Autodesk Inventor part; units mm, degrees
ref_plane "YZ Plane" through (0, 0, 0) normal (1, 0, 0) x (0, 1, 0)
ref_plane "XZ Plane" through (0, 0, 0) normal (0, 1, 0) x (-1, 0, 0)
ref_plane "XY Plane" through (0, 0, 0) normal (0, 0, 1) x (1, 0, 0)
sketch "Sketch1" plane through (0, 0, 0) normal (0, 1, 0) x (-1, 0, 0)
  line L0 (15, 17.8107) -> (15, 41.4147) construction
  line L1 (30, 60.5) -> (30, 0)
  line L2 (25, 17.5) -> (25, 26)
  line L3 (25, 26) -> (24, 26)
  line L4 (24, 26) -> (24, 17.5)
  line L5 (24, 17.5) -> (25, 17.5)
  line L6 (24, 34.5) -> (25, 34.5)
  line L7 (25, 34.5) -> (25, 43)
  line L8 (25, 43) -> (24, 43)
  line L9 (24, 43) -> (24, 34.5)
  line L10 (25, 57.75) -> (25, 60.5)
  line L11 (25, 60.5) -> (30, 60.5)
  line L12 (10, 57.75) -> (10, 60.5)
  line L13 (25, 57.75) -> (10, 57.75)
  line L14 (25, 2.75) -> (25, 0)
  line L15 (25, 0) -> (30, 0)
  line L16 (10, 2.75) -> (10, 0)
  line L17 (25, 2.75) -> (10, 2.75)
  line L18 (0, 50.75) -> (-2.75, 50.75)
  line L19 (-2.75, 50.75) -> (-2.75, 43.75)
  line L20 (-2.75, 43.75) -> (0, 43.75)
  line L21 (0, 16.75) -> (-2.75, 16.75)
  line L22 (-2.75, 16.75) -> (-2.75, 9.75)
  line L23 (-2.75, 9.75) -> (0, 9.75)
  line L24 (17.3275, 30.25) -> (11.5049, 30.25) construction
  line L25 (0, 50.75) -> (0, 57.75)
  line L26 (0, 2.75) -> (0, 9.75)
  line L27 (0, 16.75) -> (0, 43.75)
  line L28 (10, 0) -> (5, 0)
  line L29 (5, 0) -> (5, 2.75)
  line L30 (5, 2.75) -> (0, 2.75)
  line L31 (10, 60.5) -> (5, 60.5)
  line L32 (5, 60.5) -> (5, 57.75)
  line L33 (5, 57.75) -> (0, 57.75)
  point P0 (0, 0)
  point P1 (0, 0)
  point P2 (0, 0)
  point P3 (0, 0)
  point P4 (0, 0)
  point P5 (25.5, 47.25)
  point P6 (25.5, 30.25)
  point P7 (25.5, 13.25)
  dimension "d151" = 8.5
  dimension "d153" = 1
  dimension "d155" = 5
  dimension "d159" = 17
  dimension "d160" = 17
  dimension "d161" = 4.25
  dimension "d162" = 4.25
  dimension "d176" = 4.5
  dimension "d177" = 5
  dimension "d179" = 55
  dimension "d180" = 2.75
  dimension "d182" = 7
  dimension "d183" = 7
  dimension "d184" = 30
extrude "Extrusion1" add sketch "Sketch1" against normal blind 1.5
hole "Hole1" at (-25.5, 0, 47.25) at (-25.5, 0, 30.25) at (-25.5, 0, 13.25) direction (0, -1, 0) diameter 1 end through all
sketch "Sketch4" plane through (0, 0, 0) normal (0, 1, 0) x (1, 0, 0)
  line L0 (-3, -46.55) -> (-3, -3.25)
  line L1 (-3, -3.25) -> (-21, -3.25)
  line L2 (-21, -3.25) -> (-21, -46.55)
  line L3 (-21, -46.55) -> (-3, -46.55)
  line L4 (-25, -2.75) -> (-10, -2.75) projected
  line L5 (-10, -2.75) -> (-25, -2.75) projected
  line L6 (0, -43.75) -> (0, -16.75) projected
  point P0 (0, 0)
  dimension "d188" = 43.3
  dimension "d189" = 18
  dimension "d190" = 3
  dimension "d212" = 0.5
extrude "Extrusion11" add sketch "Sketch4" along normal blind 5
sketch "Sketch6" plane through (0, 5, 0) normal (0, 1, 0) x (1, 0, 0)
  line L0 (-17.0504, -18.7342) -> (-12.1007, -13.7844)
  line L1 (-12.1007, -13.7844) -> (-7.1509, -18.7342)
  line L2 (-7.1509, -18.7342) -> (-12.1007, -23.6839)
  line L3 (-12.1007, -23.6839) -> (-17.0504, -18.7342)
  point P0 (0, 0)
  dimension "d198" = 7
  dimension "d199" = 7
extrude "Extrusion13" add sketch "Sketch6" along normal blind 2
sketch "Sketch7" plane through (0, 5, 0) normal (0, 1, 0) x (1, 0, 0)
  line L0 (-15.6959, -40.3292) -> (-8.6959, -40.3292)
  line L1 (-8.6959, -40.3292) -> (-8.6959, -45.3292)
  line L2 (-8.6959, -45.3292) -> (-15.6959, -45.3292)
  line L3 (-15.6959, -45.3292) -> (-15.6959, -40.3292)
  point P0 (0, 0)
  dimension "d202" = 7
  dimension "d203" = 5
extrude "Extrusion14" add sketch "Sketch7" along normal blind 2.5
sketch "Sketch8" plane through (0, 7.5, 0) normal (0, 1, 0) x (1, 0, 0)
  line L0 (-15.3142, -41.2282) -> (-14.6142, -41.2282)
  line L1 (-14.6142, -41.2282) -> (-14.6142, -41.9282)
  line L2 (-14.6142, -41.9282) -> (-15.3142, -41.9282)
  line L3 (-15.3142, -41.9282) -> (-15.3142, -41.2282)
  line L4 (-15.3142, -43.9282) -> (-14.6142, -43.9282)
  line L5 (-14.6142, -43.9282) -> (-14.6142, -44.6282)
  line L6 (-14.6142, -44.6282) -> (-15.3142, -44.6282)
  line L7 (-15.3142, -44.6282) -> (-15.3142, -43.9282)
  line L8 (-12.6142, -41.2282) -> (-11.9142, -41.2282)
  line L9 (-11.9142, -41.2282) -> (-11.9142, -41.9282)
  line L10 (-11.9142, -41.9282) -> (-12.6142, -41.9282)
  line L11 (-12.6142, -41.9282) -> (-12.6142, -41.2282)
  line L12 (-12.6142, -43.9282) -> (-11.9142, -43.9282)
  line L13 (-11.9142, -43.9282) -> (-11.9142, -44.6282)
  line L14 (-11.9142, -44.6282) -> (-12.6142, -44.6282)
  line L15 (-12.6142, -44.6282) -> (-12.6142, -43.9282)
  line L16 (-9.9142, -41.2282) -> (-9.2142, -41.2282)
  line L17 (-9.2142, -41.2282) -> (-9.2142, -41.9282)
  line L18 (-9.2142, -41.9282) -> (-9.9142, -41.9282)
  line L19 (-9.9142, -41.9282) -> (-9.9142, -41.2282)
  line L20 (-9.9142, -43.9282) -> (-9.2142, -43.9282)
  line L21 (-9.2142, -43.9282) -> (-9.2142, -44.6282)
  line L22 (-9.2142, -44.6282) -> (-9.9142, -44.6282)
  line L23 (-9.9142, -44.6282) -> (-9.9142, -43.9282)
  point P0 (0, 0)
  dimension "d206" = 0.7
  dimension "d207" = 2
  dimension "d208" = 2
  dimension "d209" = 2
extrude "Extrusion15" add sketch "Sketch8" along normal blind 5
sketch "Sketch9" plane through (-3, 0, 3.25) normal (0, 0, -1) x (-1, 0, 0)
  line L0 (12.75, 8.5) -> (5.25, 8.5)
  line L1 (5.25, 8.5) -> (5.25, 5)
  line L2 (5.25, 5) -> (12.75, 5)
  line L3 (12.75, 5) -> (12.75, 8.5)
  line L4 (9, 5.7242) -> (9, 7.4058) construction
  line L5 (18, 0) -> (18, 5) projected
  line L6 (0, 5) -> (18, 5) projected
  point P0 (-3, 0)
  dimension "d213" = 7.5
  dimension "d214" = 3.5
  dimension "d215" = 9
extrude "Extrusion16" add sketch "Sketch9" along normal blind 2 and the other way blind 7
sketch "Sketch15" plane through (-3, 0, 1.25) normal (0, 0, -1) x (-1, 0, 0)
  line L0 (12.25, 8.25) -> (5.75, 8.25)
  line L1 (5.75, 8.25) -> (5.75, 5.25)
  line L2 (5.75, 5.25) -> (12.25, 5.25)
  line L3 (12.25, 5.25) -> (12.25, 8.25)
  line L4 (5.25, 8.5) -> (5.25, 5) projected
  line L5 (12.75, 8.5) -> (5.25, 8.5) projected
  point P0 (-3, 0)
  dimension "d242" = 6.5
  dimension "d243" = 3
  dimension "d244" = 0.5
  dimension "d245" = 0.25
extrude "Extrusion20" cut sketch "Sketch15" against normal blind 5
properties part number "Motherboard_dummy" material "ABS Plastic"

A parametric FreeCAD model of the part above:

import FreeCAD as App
import Part
import Sketcher
from FreeCAD import Vector

doc = App.newDocument("Part")
body = doc.addObject("PartDesign::Body", "Body")

sketch1 = body.newObject("Sketcher::SketchObject", "Sketch")
sketch1.AttachmentSupport = (doc.getObject("XZ_Plane"), [""])
sketch1.MapMode = "FlatFace"
sketch1.addGeometry(Part.LineSegment(Vector(-30, 0, 0), Vector(-30, 60.5, 0)), False)
sketch1.addGeometry(Part.LineSegment(Vector(-30, 60.5, 0), Vector(-25, 60.5, 0)), False)
sketch1.addGeometry(Part.LineSegment(Vector(-25, 60.5, 0), Vector(-25, 57.75, 0)), False)
sketch1.addGeometry(Part.LineSegment(Vector(-25, 57.75, 0), Vector(-10, 57.75, 0)), False)
sketch1.addGeometry(Part.LineSegment(Vector(-10, 57.75, 0), Vector(-10, 60.5, 0)), False)
sketch1.addGeometry(Part.LineSegment(Vector(-10, 60.5, 0), Vector(-5, 60.5, 0)), False)
sketch1.addGeometry(Part.LineSegment(Vector(-5, 60.5, 0), Vector(-5, 57.75, 0)), False)
sketch1.addGeometry(Part.LineSegment(Vector(-5, 57.75, 0), Vector(0, 57.75, 0)), False)
sketch1.addGeometry(Part.LineSegment(Vector(0, 57.75, 0), Vector(0, 50.75, 0)), False)
sketch1.addGeometry(Part.LineSegment(Vector(0, 50.75, 0), Vector(2.75, 50.75, 0)), False)
sketch1.addGeometry(Part.LineSegment(Vector(2.75, 50.75, 0), Vector(2.75, 43.75, 0)), False)
sketch1.addGeometry(Part.LineSegment(Vector(2.75, 43.75, 0), Vector(0, 43.75, 0)), False)
sketch1.addGeometry(Part.LineSegment(Vector(0, 43.75, 0), Vector(0, 16.75, 0)), False)
sketch1.addGeometry(Part.LineSegment(Vector(0, 16.75, 0), Vector(2.75, 16.75, 0)), False)
sketch1.addGeometry(Part.LineSegment(Vector(2.75, 16.75, 0), Vector(2.75, 9.75, 0)), False)
sketch1.addGeometry(Part.LineSegment(Vector(2.75, 9.75, 0), Vector(0, 9.75, 0)), False)
sketch1.addGeometry(Part.LineSegment(Vector(0, 9.75, 0), Vector(0, 2.75, 0)), False)
sketch1.addGeometry(Part.LineSegment(Vector(0, 2.75, 0), Vector(-5, 2.75, 0)), False)
sketch1.addGeometry(Part.LineSegment(Vector(-5, 2.75, 0), Vector(-5, 0, 0)), False)
sketch1.addGeometry(Part.LineSegment(Vector(-5, 0, 0), Vector(-10, 0, 0)), False)
sketch1.addGeometry(Part.LineSegment(Vector(-10, 0, 0), Vector(-10, 2.75, 0)), False)
sketch1.addGeometry(Part.LineSegment(Vector(-10, 2.75, 0), Vector(-25, 2.75, 0)), False)
sketch1.addGeometry(Part.LineSegment(Vector(-25, 2.75, 0), Vector(-25, 0, 0)), False)
sketch1.addGeometry(Part.LineSegment(Vector(-25, 0, 0), Vector(-30, 0, 0)), False)
sketch1.addGeometry(Part.LineSegment(Vector(-25, 26, 0), Vector(-25, 17.5, 0)), False)
sketch1.addGeometry(Part.LineSegment(Vector(-25, 17.5, 0), Vector(-24, 17.5, 0)), False)
sketch1.addGeometry(Part.LineSegment(Vector(-24, 17.5, 0), Vector(-24, 26, 0)), False)
sketch1.addGeometry(Part.LineSegment(Vector(-24, 26, 0), Vector(-25, 26, 0)), False)
sketch1.addGeometry(Part.LineSegment(Vector(-25, 34.5, 0), Vector(-24, 34.5, 0)), False)
sketch1.addGeometry(Part.LineSegment(Vector(-24, 34.5, 0), Vector(-24, 43, 0)), False)
sketch1.addGeometry(Part.LineSegment(Vector(-24, 43, 0), Vector(-25, 43, 0)), False)
sketch1.addGeometry(Part.LineSegment(Vector(-25, 43, 0), Vector(-25, 34.5, 0)), False)
sketch1.addConstraint(Sketcher.Constraint("Coincident", 0, 2, 1, 1))
sketch1.addConstraint(Sketcher.Constraint("Coincident", 1, 2, 2, 1))
sketch1.addConstraint(Sketcher.Constraint("Coincident", 2, 2, 3, 1))
sketch1.addConstraint(Sketcher.Constraint("Coincident", 3, 2, 4, 1))
sketch1.addConstraint(Sketcher.Constraint("Coincident", 4, 2, 5, 1))
sketch1.addConstraint(Sketcher.Constraint("Coincident", 5, 2, 6, 1))
sketch1.addConstraint(Sketcher.Constraint("Coincident", 6, 2, 7, 1))
sketch1.addConstraint(Sketcher.Constraint("Coincident", 7, 2, 8, 1))
sketch1.addConstraint(Sketcher.Constraint("Coincident", 8, 2, 9, 1))
sketch1.addConstraint(Sketcher.Constraint("Coincident", 9, 2, 10, 1))
sketch1.addConstraint(Sketcher.Constraint("Coincident", 10, 2, 11, 1))
sketch1.addConstraint(Sketcher.Constraint("Coincident", 11, 2, 12, 1))
sketch1.addConstraint(Sketcher.Constraint("Coincident", 12, 2, 13, 1))
sketch1.addConstraint(Sketcher.Constraint("Coincident", 13, 2, 14, 1))
sketch1.addConstraint(Sketcher.Constraint("Coincident", 14, 2, 15, 1))
sketch1.addConstraint(Sketcher.Constraint("Coincident", 15, 2, 16, 1))
sketch1.addConstraint(Sketcher.Constraint("Coincident", 16, 2, 17, 1))
sketch1.addConstraint(Sketcher.Constraint("Coincident", 17, 2, 18, 1))
sketch1.addConstraint(Sketcher.Constraint("Coincident", 18, 2, 19, 1))
sketch1.addConstraint(Sketcher.Constraint("Coincident", 19, 2, 20, 1))
sketch1.addConstraint(Sketcher.Constraint("Coincident", 20, 2, 21, 1))
sketch1.addConstraint(Sketcher.Constraint("Coincident", 21, 2, 22, 1))
sketch1.addConstraint(Sketcher.Constraint("Coincident", 22, 2, 23, 1))
sketch1.addConstraint(Sketcher.Constraint("Coincident", 23, 2, 0, 1))
sketch1.addConstraint(Sketcher.Constraint("Coincident", 24, 2, 25, 1))
sketch1.addConstraint(Sketcher.Constraint("Coincident", 25, 2, 26, 1))
sketch1.addConstraint(Sketcher.Constraint("Coincident", 26, 2, 27, 1))
sketch1.addConstraint(Sketcher.Constraint("Coincident", 27, 2, 24, 1))
sketch1.addConstraint(Sketcher.Constraint("Coincident", 28, 2, 29, 1))
sketch1.addConstraint(Sketcher.Constraint("Coincident", 29, 2, 30, 1))
sketch1.addConstraint(Sketcher.Constraint("Coincident", 30, 2, 31, 1))
sketch1.addConstraint(Sketcher.Constraint("Coincident", 31, 2, 28, 1))
sketch1.addConstraint(Sketcher.Constraint("Vertical", 0))
sketch1.addConstraint(Sketcher.Constraint("Horizontal", 1))
sketch1.addConstraint(Sketcher.Constraint("Vertical", 2))
sketch1.addConstraint(Sketcher.Constraint("Horizontal", 3))
sketch1.addConstraint(Sketcher.Constraint("Vertical", 4))
sketch1.addConstraint(Sketcher.Constraint("Horizontal", 5))
sketch1.addConstraint(Sketcher.Constraint("Vertical", 6))
sketch1.addConstraint(Sketcher.Constraint("Horizontal", 7))
sketch1.addConstraint(Sketcher.Constraint("Vertical", 8))
sketch1.addConstraint(Sketcher.Constraint("Horizontal", 9))
sketch1.addConstraint(Sketcher.Constraint("Vertical", 10))
sketch1.addConstraint(Sketcher.Constraint("Horizontal", 11))
sketch1.addConstraint(Sketcher.Constraint("Vertical", 12))
sketch1.addConstraint(Sketcher.Constraint("Horizontal", 13))
sketch1.addConstraint(Sketcher.Constraint("Vertical", 14))
sketch1.addConstraint(Sketcher.Constraint("Horizontal", 15))
sketch1.addConstraint(Sketcher.Constraint("Vertical", 16))
sketch1.addConstraint(Sketcher.Constraint("Horizontal", 17))
sketch1.addConstraint(Sketcher.Constraint("Vertical", 18))
sketch1.addConstraint(Sketcher.Constraint("Horizontal", 19))
sketch1.addConstraint(Sketcher.Constraint("Vertical", 20))
sketch1.addConstraint(Sketcher.Constraint("Horizontal", 21))
sketch1.addConstraint(Sketcher.Constraint("Vertical", 22))
sketch1.addConstraint(Sketcher.Constraint("Horizontal", 23))
sketch1.addConstraint(Sketcher.Constraint("Vertical", 24))
sketch1.addConstraint(Sketcher.Constraint("Horizontal", 25))
sketch1.addConstraint(Sketcher.Constraint("Vertical", 26))
sketch1.addConstraint(Sketcher.Constraint("Horizontal", 27))
sketch1.addConstraint(Sketcher.Constraint("Horizontal", 28))
sketch1.addConstraint(Sketcher.Constraint("Vertical", 29))
sketch1.addConstraint(Sketcher.Constraint("Horizontal", 30))
sketch1.addConstraint(Sketcher.Constraint("Vertical", 31))
sketch1.addConstraint(Sketcher.Constraint("PointOnObject", 7, 2, -2))
sketch1.addConstraint(Sketcher.Constraint("PointOnObject", 11, 2, -2))
sketch1.addConstraint(Sketcher.Constraint("PointOnObject", 15, 2, -2))
sketch1.addConstraint(Sketcher.Constraint("PointOnObject", 18, 2, -1))
sketch1.addConstraint(Sketcher.Constraint("PointOnObject", 22, 2, -1))
sketch1.addConstraint(Sketcher.Constraint("Horizontal", 1, 2, 4, 2))
sketch1.addConstraint(Sketcher.Constraint("Horizontal", 3, 2, 6, 2))
sketch1.addConstraint(Sketcher.Constraint("Horizontal", 17, 2, 20, 2))
sketch1.addConstraint(Sketcher.Constraint("Vertical", 10, 2, 13, 2))
sketch1.addConstraint(Sketcher.Constraint("Vertical", 6, 2, 17, 2))
sketch1.addConstraint(Sketcher.Constraint("Vertical", 4, 2, 19, 2))
sketch1.addConstraint(Sketcher.Constraint("Vertical", 2, 2, 21, 2))
sketch1.addConstraint(Sketcher.Constraint("Vertical", 22, 2, 24, 2))
sketch1.addConstraint(Sketcher.Constraint("Vertical", 26, 2, 28, 2))
sketch1.addConstraint(Sketcher.Constraint("Vertical", 27, 2, 30, 2))
sketch1.addConstraint(Sketcher.Constraint("Equal", 1, 5))
sketch1.addConstraint(Sketcher.Constraint("Equal", 5, 7))
sketch1.addConstraint(Sketcher.Constraint("Equal", 15, 2))
sketch1.addConstraint(Sketcher.Constraint("Equal", 8, 10))
sketch1.addConstraint(Sketcher.Constraint("Equal", 10, 14))
sketch1.addConstraint(Sketcher.Constraint("Equal", 14, 16))
sketch1.addConstraint(Sketcher.Constraint("Equal", 6, 18))
sketch1.addConstraint(Sketcher.Constraint("Equal", 26, 29))
sketch1.addConstraint(Sketcher.Constraint("DistanceX", 1, 1, 1, 2, 5.0))
sketch1.addConstraint(Sketcher.Constraint("DistanceX", 25, 1, 25, 2, 1.0))
sketch1.addConstraint(Sketcher.Constraint("DistanceY", 8, 2, 8, 1, 7.0))
sketch1.addConstraint(Sketcher.Constraint("DistanceY", 24, 2, 24, 1, 8.5))
sketch1.addConstraint(Sketcher.Constraint("DistanceX", 0, 2, -1, 1, 30.0))
sketch1.addConstraint(Sketcher.Constraint("DistanceY", 25, 2, 28, 2, 17.0))
sketch1.addConstraint(Sketcher.Constraint("DistanceX", 9, 1, 9, 2, 2.75))
sketch1.addConstraint(Sketcher.Constraint("DistanceY", 12, 2, 12, 1, 27.0))
sketch1.addConstraint(Sketcher.Constraint("DistanceY", -1, 1, 26, 2, 26.0))
pad1 = body.newObject("PartDesign::Pad", "Pad")
pad1.Profile = sketch1
pad1.Length = 1.5

sketch2 = body.newObject("Sketcher::SketchObject", "Sketch001")
sketch2.AttachmentSupport = (doc.getObject("XZ_Plane"), [""])
sketch2.MapMode = "FlatFace"
sketch2.addGeometry(Part.Circle(Vector(-25.5, 47.25, 0), Vector(0, 0, 1), 0.5), False)
sketch2.addGeometry(Part.Circle(Vector(-25.5, 30.25, 0), Vector(0, 0, 1), 0.5), False)
sketch2.addGeometry(Part.Circle(Vector(-25.5, 13.25, 0), Vector(0, 0, 1), 0.5), False)
sketch2.addConstraint(Sketcher.Constraint("Equal", 0, 1))
sketch2.addConstraint(Sketcher.Constraint("Equal", 1, 2))
sketch2.addConstraint(Sketcher.Constraint("Vertical", 0, 3, 1, 3))
sketch2.addConstraint(Sketcher.Constraint("Vertical", 1, 3, 2, 3))
sketch2.addConstraint(Sketcher.Constraint("Diameter", 0, 1.0))
sketch2.addConstraint(Sketcher.Constraint("DistanceY", 1, 3, 0, 3, 17.0))
sketch2.addConstraint(Sketcher.Constraint("DistanceY", 2, 3, 1, 3, 17.0))
sketch2.addConstraint(Sketcher.Constraint("DistanceX", 0, 3, -1, 1, 25.5))
sketch2.addConstraint(Sketcher.Constraint("DistanceY", -1, 1, 0, 3, 47.25))
doc.recompute()
hole = body.newObject("PartDesign::Hole", "Hole")
hole.Profile = sketch2
hole.ThreadType = "None"
hole.Diameter = 1
hole.DepthType = "ThroughAll"
hole.Reversed = True

sketch3 = body.newObject("Sketcher::SketchObject", "Sketch002")
sketch3.AttachmentSupport = (doc.getObject("XZ_Plane"), [""])
sketch3.MapMode = "FlatFace"
sketch3.addGeometry(Part.LineSegment(Vector(-21, 46.55, 0), Vector(-3, 46.55, 0)), False)
sketch3.addGeometry(Part.LineSegment(Vector(-3, 46.55, 0), Vector(-3, 3.25, 0)), False)
sketch3.addGeometry(Part.LineSegment(Vector(-3, 3.25, 0), Vector(-21, 3.25, 0)), False)
sketch3.addGeometry(Part.LineSegment(Vector(-21, 3.25, 0), Vector(-21, 46.55, 0)), False)
sketch3.addConstraint(Sketcher.Constraint("Coincident", 0, 2, 1, 1))
sketch3.addConstraint(Sketcher.Constraint("Coincident", 1, 2, 2, 1))
sketch3.addConstraint(Sketcher.Constraint("Coincident", 2, 2, 3, 1))
sketch3.addConstraint(Sketcher.Constraint("Coincident", 3, 2, 0, 1))
sketch3.addConstraint(Sketcher.Constraint("Horizontal", 0))
sketch3.addConstraint(Sketcher.Constraint("Vertical", 1))
sketch3.addConstraint(Sketcher.Constraint("Horizontal", 2))
sketch3.addConstraint(Sketcher.Constraint("Vertical", 3))
sketch3.addConstraint(Sketcher.Constraint("DistanceX", 0, 1, 0, 2, 18.0))
sketch3.addConstraint(Sketcher.Constraint("DistanceY", 1, 2, 1, 1, 43.3))
sketch3.addConstraint(Sketcher.Constraint("DistanceX", 0, 2, -1, 1, 3.0))
sketch3.addConstraint(Sketcher.Constraint("DistanceY", -1, 1, 0, 2, 46.55))
pad2 = body.newObject("PartDesign::Pad", "Pad001")
pad2.Profile = sketch3
pad2.Length = 5
pad2.Reversed = True

sketch4 = body.newObject("Sketcher::SketchObject", "Sketch003")
sketch4.AttachmentSupport = (doc.getObject("XZ_Plane"), [""])
sketch4.MapMode = "FlatFace"
sketch4.AttachmentOffset = App.Placement(Vector(0, 0, -5), App.Rotation())
sketch4.addGeometry(Part.LineSegment(Vector(-12.1007, 13.7844, 0), Vector(-17.0504, 18.7342, 0)), False)
sketch4.addGeometry(Part.LineSegment(Vector(-17.0504, 18.7342, 0), Vector(-12.1007, 23.6839, 0)), False)
sketch4.addGeometry(Part.LineSegment(Vector(-12.1007, 23.6839, 0), Vector(-7.1509, 18.7342, 0)), False)
sketch4.addGeometry(Part.LineSegment(Vector(-7.1509, 18.7342, 0), Vector(-12.1007, 13.7844, 0)), False)
sketch4.addConstraint(Sketcher.Constraint("Coincident", 0, 2, 1, 1))
sketch4.addConstraint(Sketcher.Constraint("Coincident", 1, 2, 2, 1))
sketch4.addConstraint(Sketcher.Constraint("Coincident", 2, 2, 3, 1))
sketch4.addConstraint(Sketcher.Constraint("Coincident", 3, 2, 0, 1))
sketch4.addConstraint(Sketcher.Constraint("Perpendicular", 0, 1))
sketch4.addConstraint(Sketcher.Constraint("Perpendicular", 1, 2))
sketch4.addConstraint(Sketcher.Constraint("Perpendicular", 2, 3))
sketch4.addConstraint(Sketcher.Constraint("Horizontal", 0, 2, 2, 2))
sketch4.addConstraint(Sketcher.Constraint("Vertical", 1, 2, 3, 2))
sketch4.addConstraint(Sketcher.Constraint("Distance", 0, 7.0))
sketch4.addConstraint(Sketcher.Constraint("DistanceY", -1, 1, 1, 2, 23.684))
sketch4.addConstraint(Sketcher.Constraint("DistanceX", 2, 2, -1, 1, 7.151))
pad3 = body.newObject("PartDesign::Pad", "Pad002")
pad3.Profile = sketch4
pad3.Length = 2
pad3.Reversed = True

sketch5 = body.newObject("Sketcher::SketchObject", "Sketch004")
sketch5.AttachmentSupport = (doc.getObject("XZ_Plane"), [""])
sketch5.MapMode = "FlatFace"
sketch5.AttachmentOffset = App.Placement(Vector(0, 0, -5), App.Rotation())
sketch5.addGeometry(Part.LineSegment(Vector(-8.6959, 40.3292, 0), Vector(-15.6959, 40.3292, 0)), False)
sketch5.addGeometry(Part.LineSegment(Vector(-15.6959, 40.3292, 0), Vector(-15.6959, 45.3292, 0)), False)
sketch5.addGeometry(Part.LineSegment(Vector(-15.6959, 45.3292, 0), Vector(-8.6959, 45.3292, 0)), False)
sketch5.addGeometry(Part.LineSegment(Vector(-8.6959, 45.3292, 0), Vector(-8.6959, 40.3292, 0)), False)
sketch5.addConstraint(Sketcher.Constraint("Coincident", 0, 2, 1, 1))
sketch5.addConstraint(Sketcher.Constraint("Coincident", 1, 2, 2, 1))
sketch5.addConstraint(Sketcher.Constraint("Coincident", 2, 2, 3, 1))
sketch5.addConstraint(Sketcher.Constraint("Coincident", 3, 2, 0, 1))
sketch5.addConstraint(Sketcher.Constraint("Horizontal", 0))
sketch5.addConstraint(Sketcher.Constraint("Vertical", 1))
sketch5.addConstraint(Sketcher.Constraint("Horizontal", 2))
sketch5.addConstraint(Sketcher.Constraint("Vertical", 3))
sketch5.addConstraint(Sketcher.Constraint("DistanceX", 0, 2, 0, 1, 7.0))
sketch5.addConstraint(Sketcher.Constraint("DistanceY", 1, 1, 1, 2, 5.0))
sketch5.addConstraint(Sketcher.Constraint("DistanceX", 0, 2, -1, 1, 15.696))
sketch5.addConstraint(Sketcher.Constraint("DistanceY", -1, 1, 0, 2, 40.3292))
pad4 = body.newObject("PartDesign::Pad", "Pad003")
pad4.Profile = sketch5
pad4.Length = 2.5
pad4.Reversed = True

sketch6 = body.newObject("Sketcher::SketchObject", "Sketch005")
sketch6.AttachmentSupport = (doc.getObject("XZ_Plane"), [""])
sketch6.MapMode = "FlatFace"
sketch6.AttachmentOffset = App.Placement(Vector(0, 0, -7.5), App.Rotation())
sketch6.addGeometry(Part.LineSegment(Vector(-14.6142, 41.2282, 0), Vector(-15.3142, 41.2282, 0)), False)
sketch6.addGeometry(Part.LineSegment(Vector(-15.3142, 41.2282, 0), Vector(-15.3142, 41.9282, 0)), False)
sketch6.addGeometry(Part.LineSegment(Vector(-15.3142, 41.9282, 0), Vector(-14.6142, 41.9282, 0)), False)
sketch6.addGeometry(Part.LineSegment(Vector(-14.6142, 41.9282, 0), Vector(-14.6142, 41.2282, 0)), False)
sketch6.addGeometry(Part.LineSegment(Vector(-14.6142, 43.9282, 0), Vector(-15.3142, 43.9282, 0)), False)
sketch6.addGeometry(Part.LineSegment(Vector(-15.3142, 43.9282, 0), Vector(-15.3142, 44.6282, 0)), False)
sketch6.addGeometry(Part.LineSegment(Vector(-15.3142, 44.6282, 0), Vector(-14.6142, 44.6282, 0)), False)
sketch6.addGeometry(Part.LineSegment(Vector(-14.6142, 44.6282, 0), Vector(-14.6142, 43.9282, 0)), False)
sketch6.addGeometry(Part.LineSegment(Vector(-11.9142, 41.2282, 0), Vector(-12.6142, 41.2282, 0)), False)
sketch6.addGeometry(Part.LineSegment(Vector(-12.6142, 41.2282, 0), Vector(-12.6142, 41.9282, 0)), False)
sketch6.addGeometry(Part.LineSegment(Vector(-12.6142, 41.9282, 0), Vector(-11.9142, 41.9282, 0)), False)
sketch6.addGeometry(Part.LineSegment(Vector(-11.9142, 41.9282, 0), Vector(-11.9142, 41.2282, 0)), False)
sketch6.addGeometry(Part.LineSegment(Vector(-11.9142, 43.9282, 0), Vector(-12.6142, 43.9282, 0)), False)
sketch6.addGeometry(Part.LineSegment(Vector(-12.6142, 43.9282, 0), Vector(-12.6142, 44.6282, 0)), False)
sketch6.addGeometry(Part.LineSegment(Vector(-12.6142, 44.6282, 0), Vector(-11.9142, 44.6282, 0)), False)
sketch6.addGeometry(Part.LineSegment(Vector(-11.9142, 44.6282, 0), Vector(-11.9142, 43.9282, 0)), False)
sketch6.addGeometry(Part.LineSegment(Vector(-9.2142, 41.2282, 0), Vector(-9.9142, 41.2282, 0)), False)
sketch6.addGeometry(Part.LineSegment(Vector(-9.9142, 41.2282, 0), Vector(-9.9142, 41.9282, 0)), False)
sketch6.addGeometry(Part.LineSegment(Vector(-9.9142, 41.9282, 0), Vector(-9.2142, 41.9282, 0)), False)
sketch6.addGeometry(Part.LineSegment(Vector(-9.2142, 41.9282, 0), Vector(-9.2142, 41.2282, 0)), False)
sketch6.addGeometry(Part.LineSegment(Vector(-9.2142, 43.9282, 0), Vector(-9.9142, 43.9282, 0)), False)
sketch6.addGeometry(Part.LineSegment(Vector(-9.9142, 43.9282, 0), Vector(-9.9142, 44.6282, 0)), False)
sketch6.addGeometry(Part.LineSegment(Vector(-9.9142, 44.6282, 0), Vector(-9.2142, 44.6282, 0)), False)
sketch6.addGeometry(Part.LineSegment(Vector(-9.2142, 44.6282, 0), Vector(-9.2142, 43.9282, 0)), False)
sketch6.addConstraint(Sketcher.Constraint("Coincident", 0, 2, 1, 1))
sketch6.addConstraint(Sketcher.Constraint("Coincident", 1, 2, 2, 1))
sketch6.addConstraint(Sketcher.Constraint("Coincident", 2, 2, 3, 1))
sketch6.addConstraint(Sketcher.Constraint("Coincident", 3, 2, 0, 1))
sketch6.addConstraint(Sketcher.Constraint("Coincident", 4, 2, 5, 1))
sketch6.addConstraint(Sketcher.Constraint("Coincident", 5, 2, 6, 1))
sketch6.addConstraint(Sketcher.Constraint("Coincident", 6, 2, 7, 1))
sketch6.addConstraint(Sketcher.Constraint("Coincident", 7, 2, 4, 1))
sketch6.addConstraint(Sketcher.Constraint("Coincident", 8, 2, 9, 1))
sketch6.addConstraint(Sketcher.Constraint("Coincident", 9, 2, 10, 1))
sketch6.addConstraint(Sketcher.Constraint("Coincident", 10, 2, 11, 1))
sketch6.addConstraint(Sketcher.Constraint("Coincident", 11, 2, 8, 1))
sketch6.addConstraint(Sketcher.Constraint("Coincident", 12, 2, 13, 1))
sketch6.addConstraint(Sketcher.Constraint("Coincident", 13, 2, 14, 1))
sketch6.addConstraint(Sketcher.Constraint("Coincident", 14, 2, 15, 1))
sketch6.addConstraint(Sketcher.Constraint("Coincident", 15, 2, 12, 1))
sketch6.addConstraint(Sketcher.Constraint("Coincident", 16, 2, 17, 1))
sketch6.addConstraint(Sketcher.Constraint("Coincident", 17, 2, 18, 1))
sketch6.addConstraint(Sketcher.Constraint("Coincident", 18, 2, 19, 1))
sketch6.addConstraint(Sketcher.Constraint("Coincident", 19, 2, 16, 1))
sketch6.addConstraint(Sketcher.Constraint("Coincident", 20, 2, 21, 1))
sketch6.addConstraint(Sketcher.Constraint("Coincident", 21, 2, 22, 1))
sketch6.addConstraint(Sketcher.Constraint("Coincident", 22, 2, 23, 1))
sketch6.addConstraint(Sketcher.Constraint("Coincident", 23, 2, 20, 1))
sketch6.addConstraint(Sketcher.Constraint("Horizontal", 0))
sketch6.addConstraint(Sketcher.Constraint("Vertical", 1))
sketch6.addConstraint(Sketcher.Constraint("Horizontal", 2))
sketch6.addConstraint(Sketcher.Constraint("Vertical", 3))
sketch6.addConstraint(Sketcher.Constraint("Horizontal", 4))
sketch6.addConstraint(Sketcher.Constraint("Vertical", 5))
sketch6.addConstraint(Sketcher.Constraint("Horizontal", 6))
sketch6.addConstraint(Sketcher.Constraint("Vertical", 7))
sketch6.addConstraint(Sketcher.Constraint("Horizontal", 8))
sketch6.addConstraint(Sketcher.Constraint("Vertical", 9))
sketch6.addConstraint(Sketcher.Constraint("Horizontal", 10))
sketch6.addConstraint(Sketcher.Constraint("Vertical", 11))
sketch6.addConstraint(Sketcher.Constraint("Horizontal", 12))
sketch6.addConstraint(Sketcher.Constraint("Vertical", 13))
sketch6.addConstraint(Sketcher.Constraint("Horizontal", 14))
sketch6.addConstraint(Sketcher.Constraint("Vertical", 15))
sketch6.addConstraint(Sketcher.Constraint("Horizontal", 16))
sketch6.addConstraint(Sketcher.Constraint("Vertical", 17))
sketch6.addConstraint(Sketcher.Constraint("Horizontal", 18))
sketch6.addConstraint(Sketcher.Constraint("Vertical", 19))
sketch6.addConstraint(Sketcher.Constraint("Horizontal", 20))
sketch6.addConstraint(Sketcher.Constraint("Vertical", 21))
sketch6.addConstraint(Sketcher.Constraint("Horizontal", 22))
sketch6.addConstraint(Sketcher.Constraint("Vertical", 23))
sketch6.addConstraint(Sketcher.Constraint("Horizontal", 3, 2, 8, 2))
sketch6.addConstraint(Sketcher.Constraint("Horizontal", 2, 2, 9, 2))
sketch6.addConstraint(Sketcher.Constraint("Horizontal", 7, 2, 12, 2))
sketch6.addConstraint(Sketcher.Constraint("Horizontal", 6, 2, 13, 2))
sketch6.addConstraint(Sketcher.Constraint("Horizontal", 11, 2, 16, 2))
sketch6.addConstraint(Sketcher.Constraint("Horizontal", 10, 2, 17, 2))
sketch6.addConstraint(Sketcher.Constraint("Horizontal", 15, 2, 20, 2))
sketch6.addConstraint(Sketcher.Constraint("Horizontal", 14, 2, 21, 2))
sketch6.addConstraint(Sketcher.Constraint("Vertical", 1, 2, 4, 2))
sketch6.addConstraint(Sketcher.Constraint("Vertical", 3, 2, 6, 2))
sketch6.addConstraint(Sketcher.Constraint("Vertical", 9, 2, 12, 2))
sketch6.addConstraint(Sketcher.Constraint("Vertical", 11, 2, 14, 2))
sketch6.addConstraint(Sketcher.Constraint("Vertical", 17, 2, 20, 2))
sketch6.addConstraint(Sketcher.Constraint("Vertical", 19, 2, 22, 2))
sketch6.addConstraint(Sketcher.Constraint("Equal", 6, 8))
sketch6.addConstraint(Sketcher.Constraint("Equal", 14, 16))
sketch6.addConstraint(Sketcher.Constraint("Equal", 22, 1))
sketch6.addConstraint(Sketcher.Constraint("Equal", 3, 5))
sketch6.addConstraint(Sketcher.Constraint("DistanceX", 0, 2, 0, 1, 0.7))
sketch6.addConstraint(Sketcher.Constraint("DistanceY", 1, 2, 4, 2, 2.0))
sketch6.addConstraint(Sketcher.Constraint("DistanceX", 3, 2, 8, 2, 2.0))
sketch6.addConstraint(Sketcher.Constraint("DistanceX", 11, 2, 16, 2, 2.0))
sketch6.addConstraint(Sketcher.Constraint("DistanceX", 0, 2, -1, 1, 15.3142))
sketch6.addConstraint(Sketcher.Constraint("DistanceY", -1, 1, 0, 2, 41.2282))
pad5 = body.newObject("PartDesign::Pad", "Pad004")
pad5.Profile = sketch6
pad5.Length = 5
pad5.Reversed = True

sketch7 = body.newObject("Sketcher::SketchObject", "Sketch006")
sketch7.AttachmentSupport = (doc.getObject("XY_Plane"), [""])
sketch7.MapMode = "FlatFace"
sketch7.AttachmentOffset = App.Placement(Vector(0, 0, 3.25), App.Rotation())
sketch7.addGeometry(Part.LineSegment(Vector(-15.75, 5, 0), Vector(-15.75, 8.5, 0)), False)
sketch7.addGeometry(Part.LineSegment(Vector(-15.75, 8.5, 0), Vector(-8.25, 8.5, 0)), False)
sketch7.addGeometry(Part.LineSegment(Vector(-8.25, 8.5, 0), Vector(-8.25, 5, 0)), False)
sketch7.addGeometry(Part.LineSegment(Vector(-8.25, 5, 0), Vector(-15.75, 5, 0)), False)
sketch7.addConstraint(Sketcher.Constraint("Coincident", 0, 2, 1, 1))
sketch7.addConstraint(Sketcher.Constraint("Coincident", 1, 2, 2, 1))
sketch7.addConstraint(Sketcher.Constraint("Coincident", 2, 2, 3, 1))
sketch7.addConstraint(Sketcher.Constraint("Coincident", 3, 2, 0, 1))
sketch7.addConstraint(Sketcher.Constraint("Vertical", 0))
sketch7.addConstraint(Sketcher.Constraint("Horizontal", 1))
sketch7.addConstraint(Sketcher.Constraint("Vertical", 2))
sketch7.addConstraint(Sketcher.Constraint("Horizontal", 3))
sketch7.addConstraint(Sketcher.Constraint("DistanceX", 1, 1, 1, 2, 7.5))
sketch7.addConstraint(Sketcher.Constraint("DistanceY", 0, 1, 0, 2, 3.5))
sketch7.addConstraint(Sketcher.Constraint("DistanceY", -1, 1, 2, 2, 5.0))
sketch7.addConstraint(Sketcher.Constraint("DistanceX", 0, 2, -1, 1, 15.75))
pad6 = body.newObject("PartDesign::Pad", "Pad005")
pad6.Profile = sketch7
pad6.Type = "TwoLengths"
pad6.Length = 2
pad6.Length2 = 7
pad6.Reversed = True

sketch8 = body.newObject("Sketcher::SketchObject", "Sketch007")
sketch8.AttachmentSupport = (doc.getObject("XY_Plane"), [""])
sketch8.MapMode = "FlatFace"
sketch8.AttachmentOffset = App.Placement(Vector(0, 0, 1.25), App.Rotation())
sketch8.addGeometry(Part.LineSegment(Vector(-15.25, 5.25, 0), Vector(-15.25, 8.25, 0)), False)
sketch8.addGeometry(Part.LineSegment(Vector(-15.25, 8.25, 0), Vector(-8.75, 8.25, 0)), False)
sketch8.addGeometry(Part.LineSegment(Vector(-8.75, 8.25, 0), Vector(-8.75, 5.25, 0)), False)
sketch8.addGeometry(Part.LineSegment(Vector(-8.75, 5.25, 0), Vector(-15.25, 5.25, 0)), False)
sketch8.addConstraint(Sketcher.Constraint("Coincident", 0, 2, 1, 1))
sketch8.addConstraint(Sketcher.Constraint("Coincident", 1, 2, 2, 1))
sketch8.addConstraint(Sketcher.Constraint("Coincident", 2, 2, 3, 1))
sketch8.addConstraint(Sketcher.Constraint("Coincident", 3, 2, 0, 1))
sketch8.addConstraint(Sketcher.Constraint("Vertical", 0))
sketch8.addConstraint(Sketcher.Constraint("Horizontal", 1))
sketch8.addConstraint(Sketcher.Constraint("Vertical", 2))
sketch8.addConstraint(Sketcher.Constraint("Horizontal", 3))
sketch8.addConstraint(Sketcher.Constraint("DistanceY", 0, 1, 0, 2, 3.0))
sketch8.addConstraint(Sketcher.Constraint("DistanceX", 1, 1, 1, 2, 6.5))
sketch8.addConstraint(Sketcher.Constraint("DistanceX", 0, 2, -1, 1, 15.25))
sketch8.addConstraint(Sketcher.Constraint("DistanceY", -1, 1, 0, 2, 8.25))
pocket1 = body.newObject("PartDesign::Pocket", "Pocket")
pocket1.Profile = sketch8
pocket1.Length = 5
pocket1.Reversed = True

doc.recompute()
